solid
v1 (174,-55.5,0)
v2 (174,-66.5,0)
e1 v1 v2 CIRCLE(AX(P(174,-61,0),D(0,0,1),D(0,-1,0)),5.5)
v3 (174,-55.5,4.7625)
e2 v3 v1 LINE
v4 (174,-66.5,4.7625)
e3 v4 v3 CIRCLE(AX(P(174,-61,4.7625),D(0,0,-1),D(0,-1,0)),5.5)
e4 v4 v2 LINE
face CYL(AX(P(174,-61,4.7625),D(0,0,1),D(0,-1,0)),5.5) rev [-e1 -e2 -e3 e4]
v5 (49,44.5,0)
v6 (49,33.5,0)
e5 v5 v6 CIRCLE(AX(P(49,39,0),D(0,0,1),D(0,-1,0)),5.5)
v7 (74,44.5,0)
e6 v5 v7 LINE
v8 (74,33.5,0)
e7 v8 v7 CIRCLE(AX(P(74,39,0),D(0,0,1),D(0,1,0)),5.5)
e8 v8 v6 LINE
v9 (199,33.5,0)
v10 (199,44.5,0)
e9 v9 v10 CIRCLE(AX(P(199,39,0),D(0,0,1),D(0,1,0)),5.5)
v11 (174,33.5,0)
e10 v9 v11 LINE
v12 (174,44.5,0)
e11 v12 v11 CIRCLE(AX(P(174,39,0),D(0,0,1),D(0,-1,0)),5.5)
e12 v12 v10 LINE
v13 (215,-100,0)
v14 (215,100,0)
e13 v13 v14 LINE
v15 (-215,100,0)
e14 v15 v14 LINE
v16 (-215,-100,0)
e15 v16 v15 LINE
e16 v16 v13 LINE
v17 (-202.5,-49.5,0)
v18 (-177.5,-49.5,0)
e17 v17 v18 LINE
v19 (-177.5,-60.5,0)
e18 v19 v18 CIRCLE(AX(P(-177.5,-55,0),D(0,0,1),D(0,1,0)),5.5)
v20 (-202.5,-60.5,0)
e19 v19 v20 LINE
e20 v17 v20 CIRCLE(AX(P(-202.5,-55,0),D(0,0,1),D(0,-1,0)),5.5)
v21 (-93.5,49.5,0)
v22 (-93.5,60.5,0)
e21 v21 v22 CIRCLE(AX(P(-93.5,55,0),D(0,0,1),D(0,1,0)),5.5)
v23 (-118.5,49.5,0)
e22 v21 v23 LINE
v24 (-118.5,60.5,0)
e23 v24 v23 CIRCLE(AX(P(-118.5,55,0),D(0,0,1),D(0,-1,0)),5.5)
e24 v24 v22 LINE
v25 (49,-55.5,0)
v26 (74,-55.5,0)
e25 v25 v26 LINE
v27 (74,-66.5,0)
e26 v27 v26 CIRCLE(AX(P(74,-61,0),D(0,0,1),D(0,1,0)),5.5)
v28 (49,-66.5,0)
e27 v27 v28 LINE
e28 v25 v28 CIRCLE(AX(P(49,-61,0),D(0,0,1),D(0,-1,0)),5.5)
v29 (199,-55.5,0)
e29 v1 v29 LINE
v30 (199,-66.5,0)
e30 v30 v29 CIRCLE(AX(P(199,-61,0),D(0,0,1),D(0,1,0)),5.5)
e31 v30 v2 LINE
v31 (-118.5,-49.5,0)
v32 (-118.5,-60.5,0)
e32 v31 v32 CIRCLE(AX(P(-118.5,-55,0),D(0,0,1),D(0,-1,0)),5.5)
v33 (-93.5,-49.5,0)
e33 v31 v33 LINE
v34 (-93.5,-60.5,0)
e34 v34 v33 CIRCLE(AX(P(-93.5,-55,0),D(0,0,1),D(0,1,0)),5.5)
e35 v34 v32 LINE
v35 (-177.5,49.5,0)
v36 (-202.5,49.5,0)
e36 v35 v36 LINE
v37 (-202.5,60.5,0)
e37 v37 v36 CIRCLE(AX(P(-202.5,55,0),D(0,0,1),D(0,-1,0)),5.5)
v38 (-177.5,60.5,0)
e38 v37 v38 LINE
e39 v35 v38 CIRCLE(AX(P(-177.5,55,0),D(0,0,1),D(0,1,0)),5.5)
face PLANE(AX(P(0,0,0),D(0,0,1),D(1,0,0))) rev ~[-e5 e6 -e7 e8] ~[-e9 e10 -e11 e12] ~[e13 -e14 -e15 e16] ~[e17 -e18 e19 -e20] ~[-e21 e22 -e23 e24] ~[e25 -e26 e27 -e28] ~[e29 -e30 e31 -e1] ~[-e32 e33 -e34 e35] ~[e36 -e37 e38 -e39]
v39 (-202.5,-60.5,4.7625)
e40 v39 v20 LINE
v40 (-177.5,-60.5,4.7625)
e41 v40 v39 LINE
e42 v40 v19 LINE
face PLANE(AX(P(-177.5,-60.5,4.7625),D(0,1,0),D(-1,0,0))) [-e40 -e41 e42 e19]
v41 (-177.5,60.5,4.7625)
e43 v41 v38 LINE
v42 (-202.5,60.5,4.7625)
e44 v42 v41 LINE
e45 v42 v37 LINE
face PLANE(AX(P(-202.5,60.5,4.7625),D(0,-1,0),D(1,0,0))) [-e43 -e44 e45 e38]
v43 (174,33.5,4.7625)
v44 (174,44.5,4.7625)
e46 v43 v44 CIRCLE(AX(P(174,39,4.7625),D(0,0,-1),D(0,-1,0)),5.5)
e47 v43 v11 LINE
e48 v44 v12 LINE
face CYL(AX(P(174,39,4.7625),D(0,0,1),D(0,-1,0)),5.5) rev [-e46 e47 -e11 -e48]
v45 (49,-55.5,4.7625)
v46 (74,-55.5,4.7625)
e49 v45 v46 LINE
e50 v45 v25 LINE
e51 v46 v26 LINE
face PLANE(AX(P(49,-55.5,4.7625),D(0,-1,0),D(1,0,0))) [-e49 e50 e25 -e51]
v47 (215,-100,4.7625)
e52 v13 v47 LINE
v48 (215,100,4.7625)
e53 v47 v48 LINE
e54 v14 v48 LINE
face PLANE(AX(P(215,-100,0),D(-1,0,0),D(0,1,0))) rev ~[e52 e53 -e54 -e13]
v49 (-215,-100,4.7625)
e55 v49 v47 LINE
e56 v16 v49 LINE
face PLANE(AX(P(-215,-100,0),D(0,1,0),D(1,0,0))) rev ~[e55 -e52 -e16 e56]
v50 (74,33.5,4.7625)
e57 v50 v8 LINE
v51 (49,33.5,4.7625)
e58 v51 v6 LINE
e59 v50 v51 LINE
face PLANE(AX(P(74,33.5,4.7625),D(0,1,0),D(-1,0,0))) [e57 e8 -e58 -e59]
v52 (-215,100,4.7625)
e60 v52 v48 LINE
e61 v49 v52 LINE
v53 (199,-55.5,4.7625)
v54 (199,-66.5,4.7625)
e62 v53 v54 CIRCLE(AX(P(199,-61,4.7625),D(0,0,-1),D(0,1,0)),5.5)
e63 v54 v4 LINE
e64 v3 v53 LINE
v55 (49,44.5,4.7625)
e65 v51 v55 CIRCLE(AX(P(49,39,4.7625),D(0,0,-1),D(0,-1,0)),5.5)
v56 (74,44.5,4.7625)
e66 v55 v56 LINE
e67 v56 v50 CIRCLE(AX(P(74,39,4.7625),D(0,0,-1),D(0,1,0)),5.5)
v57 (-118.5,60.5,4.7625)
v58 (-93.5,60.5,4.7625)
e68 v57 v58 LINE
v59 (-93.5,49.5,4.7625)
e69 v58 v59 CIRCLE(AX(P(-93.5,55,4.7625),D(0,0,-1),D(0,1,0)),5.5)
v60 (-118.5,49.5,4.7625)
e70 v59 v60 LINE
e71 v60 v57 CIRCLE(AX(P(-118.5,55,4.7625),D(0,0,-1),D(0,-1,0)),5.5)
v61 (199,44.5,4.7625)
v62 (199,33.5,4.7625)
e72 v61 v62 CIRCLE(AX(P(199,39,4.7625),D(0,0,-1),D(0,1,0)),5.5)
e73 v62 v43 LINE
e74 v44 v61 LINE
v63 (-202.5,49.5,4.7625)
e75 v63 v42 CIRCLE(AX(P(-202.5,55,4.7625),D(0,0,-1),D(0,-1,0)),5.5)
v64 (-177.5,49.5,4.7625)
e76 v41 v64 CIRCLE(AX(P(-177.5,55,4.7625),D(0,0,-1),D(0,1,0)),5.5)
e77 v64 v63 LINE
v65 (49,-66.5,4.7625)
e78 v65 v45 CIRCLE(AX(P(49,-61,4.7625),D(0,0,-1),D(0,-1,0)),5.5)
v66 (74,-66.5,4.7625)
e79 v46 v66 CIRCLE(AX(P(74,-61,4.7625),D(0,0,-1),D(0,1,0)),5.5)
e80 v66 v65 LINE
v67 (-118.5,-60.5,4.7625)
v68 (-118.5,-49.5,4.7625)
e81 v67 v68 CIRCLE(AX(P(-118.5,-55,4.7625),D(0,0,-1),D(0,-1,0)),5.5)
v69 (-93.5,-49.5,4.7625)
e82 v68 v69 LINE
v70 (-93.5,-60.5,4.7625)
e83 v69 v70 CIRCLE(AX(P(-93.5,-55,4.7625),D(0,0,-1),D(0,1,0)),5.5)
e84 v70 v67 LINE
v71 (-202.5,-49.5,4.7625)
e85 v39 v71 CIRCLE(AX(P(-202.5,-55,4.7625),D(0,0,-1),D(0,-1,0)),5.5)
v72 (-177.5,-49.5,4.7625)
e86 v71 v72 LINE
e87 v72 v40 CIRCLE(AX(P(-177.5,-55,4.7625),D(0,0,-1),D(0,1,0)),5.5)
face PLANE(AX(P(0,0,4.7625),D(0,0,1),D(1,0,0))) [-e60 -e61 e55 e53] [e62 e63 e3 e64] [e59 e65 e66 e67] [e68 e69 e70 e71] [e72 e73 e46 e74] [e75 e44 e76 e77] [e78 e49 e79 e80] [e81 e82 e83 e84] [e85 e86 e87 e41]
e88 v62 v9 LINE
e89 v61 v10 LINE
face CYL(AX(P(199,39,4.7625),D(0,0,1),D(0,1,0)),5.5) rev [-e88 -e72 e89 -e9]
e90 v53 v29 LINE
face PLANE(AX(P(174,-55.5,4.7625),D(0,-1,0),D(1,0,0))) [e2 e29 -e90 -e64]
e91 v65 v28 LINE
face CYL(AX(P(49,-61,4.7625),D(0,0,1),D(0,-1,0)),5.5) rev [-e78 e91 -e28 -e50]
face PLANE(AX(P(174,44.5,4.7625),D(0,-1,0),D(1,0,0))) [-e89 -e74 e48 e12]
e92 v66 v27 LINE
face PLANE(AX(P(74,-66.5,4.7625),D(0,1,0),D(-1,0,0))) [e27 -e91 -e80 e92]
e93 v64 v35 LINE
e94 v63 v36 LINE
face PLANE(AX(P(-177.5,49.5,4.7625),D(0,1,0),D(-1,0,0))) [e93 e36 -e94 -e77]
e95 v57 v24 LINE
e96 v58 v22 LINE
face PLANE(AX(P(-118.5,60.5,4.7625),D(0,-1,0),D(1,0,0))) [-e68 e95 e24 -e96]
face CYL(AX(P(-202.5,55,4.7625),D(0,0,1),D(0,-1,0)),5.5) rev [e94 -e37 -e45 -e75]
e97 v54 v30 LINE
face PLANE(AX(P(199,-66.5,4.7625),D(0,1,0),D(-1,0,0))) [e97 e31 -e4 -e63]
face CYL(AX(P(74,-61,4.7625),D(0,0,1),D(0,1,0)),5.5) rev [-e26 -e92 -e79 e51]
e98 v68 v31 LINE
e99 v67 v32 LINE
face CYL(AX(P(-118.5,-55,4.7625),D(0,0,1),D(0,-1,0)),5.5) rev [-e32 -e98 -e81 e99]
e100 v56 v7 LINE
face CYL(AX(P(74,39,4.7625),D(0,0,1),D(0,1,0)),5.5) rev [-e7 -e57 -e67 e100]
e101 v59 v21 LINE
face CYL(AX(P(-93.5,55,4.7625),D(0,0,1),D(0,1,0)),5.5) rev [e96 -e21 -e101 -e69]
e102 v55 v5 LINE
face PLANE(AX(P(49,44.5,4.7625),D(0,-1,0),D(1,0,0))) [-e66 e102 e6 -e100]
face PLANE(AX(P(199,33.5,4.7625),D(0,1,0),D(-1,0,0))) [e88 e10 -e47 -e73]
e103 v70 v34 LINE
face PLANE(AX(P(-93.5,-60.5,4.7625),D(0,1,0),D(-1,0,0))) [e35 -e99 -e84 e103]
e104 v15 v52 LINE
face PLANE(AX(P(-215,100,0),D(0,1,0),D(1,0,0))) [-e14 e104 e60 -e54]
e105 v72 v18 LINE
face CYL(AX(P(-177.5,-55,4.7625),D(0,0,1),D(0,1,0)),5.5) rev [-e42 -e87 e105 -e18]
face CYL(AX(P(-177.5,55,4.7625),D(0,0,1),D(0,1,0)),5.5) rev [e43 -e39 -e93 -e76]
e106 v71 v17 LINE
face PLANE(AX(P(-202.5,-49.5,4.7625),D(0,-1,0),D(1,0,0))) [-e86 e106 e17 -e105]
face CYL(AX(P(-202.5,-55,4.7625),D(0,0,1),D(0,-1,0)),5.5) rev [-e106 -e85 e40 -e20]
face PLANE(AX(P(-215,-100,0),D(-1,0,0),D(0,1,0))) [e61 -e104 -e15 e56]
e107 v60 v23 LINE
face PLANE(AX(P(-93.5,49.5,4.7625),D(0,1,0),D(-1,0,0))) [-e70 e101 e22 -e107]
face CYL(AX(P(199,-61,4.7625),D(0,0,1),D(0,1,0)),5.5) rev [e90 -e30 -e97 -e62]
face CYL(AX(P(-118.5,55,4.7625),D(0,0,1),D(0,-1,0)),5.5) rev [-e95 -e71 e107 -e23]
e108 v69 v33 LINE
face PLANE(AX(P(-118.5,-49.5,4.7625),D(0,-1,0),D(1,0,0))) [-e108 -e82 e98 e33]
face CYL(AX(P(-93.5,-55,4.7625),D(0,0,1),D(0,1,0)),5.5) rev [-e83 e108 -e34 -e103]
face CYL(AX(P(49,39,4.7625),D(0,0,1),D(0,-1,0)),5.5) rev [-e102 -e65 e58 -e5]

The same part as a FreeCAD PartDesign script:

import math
import FreeCAD as App
import Part
import Sketcher
from FreeCAD import Vector
Q = App.Units.Quantity


def add_polygon(sketch, points):
    """Adds a closed chain of lines whose ends are joined by coincident constraints."""
    first, n = sketch.GeometryCount, len(points)
    for a, b in zip(points, points[1:] + points[:1]):
        sketch.addGeometry(Part.LineSegment(App.Vector(*a, 0), App.Vector(*b, 0)), False)
    for i in range(n):
        sketch.addConstraint(Sketcher.Constraint("Coincident", first + i, 2, first + (i + 1) % n, 1))

doc = App.newDocument("Part")
params = doc.addObject("Spreadsheet::Sheet", "Params")
for row, (alias, value) in enumerate([
    ("sketch1_width", "430 mm"),
    ("sketch1_height", "200 mm"),
    ("pad1_length", "4.7625 mm"),
    ("sketch2_radius", "5.5 mm"),
    ("sketch2_width", "25 mm"),
], start=1):
    params.set(f"A{row}", alias)
    params.set(f"B{row}", "=" + value)
    params.setAlias(f"B{row}", alias)

body = doc.addObject("PartDesign::Body", "Body")

# Sketch on XY plane
sketch1 = body.newObject("Sketcher::SketchObject", "Sketch")
sketch1.AttachmentSupport = (doc.getObject("XY_Plane"), [""])
sketch1.MapMode = "FlatFace"
add_polygon(sketch1, [(-215, 100), (-215, -100), (215, -100), (215, 100)])  # lines 0-3
sketch1.addConstraint(Sketcher.Constraint("Vertical", 0))
sketch1.addConstraint(Sketcher.Constraint("Horizontal", 1))
sketch1.addConstraint(Sketcher.Constraint("Vertical", 2))
sketch1.addConstraint(Sketcher.Constraint("Horizontal", 3))
sketch1.addConstraint(Sketcher.Constraint("Symmetric", 0, 2, 2, 2, -1, 1))
sketch1.addConstraint(Sketcher.Constraint("DistanceX", 1, 1, 1, 2, Q("430 mm")))
sketch1.addConstraint(Sketcher.Constraint("DistanceY", 0, 2, 0, 1, Q("200 mm")))
sketch1.setExpression("Constraints[9]", "Params.sketch1_width")
sketch1.setExpression("Constraints[10]", "Params.sketch1_height")
pad1 = body.newObject("PartDesign::Pad", "Pad")
pad1.Profile = sketch1
pad1.setExpression("Length", "Params.pad1_length")

# Sketch on XY plane
sketch2 = body.newObject("Sketcher::SketchObject", "Sketch001")
sketch2.AttachmentSupport = (doc.getObject("XY_Plane"), [""])
sketch2.MapMode = "FlatFace"
sketch2.AttachmentOffset = App.Placement(Vector(0, 0, 4.7625), App.Rotation())
sketch2.addGeometry(Part.LineSegment(Vector(-178, 60, 0), Vector(-202, 60, 0)), False)
sketch2.addGeometry(Part.ArcOfCircle(Part.Circle(Vector(-202, 55, 0), Vector(0, 0, 1), 6), math.radians(90), math.radians(270)), False)
sketch2.addGeometry(Part.LineSegment(Vector(-202, 50, 0), Vector(-178, 50, 0)), False)
sketch2.addGeometry(Part.ArcOfCircle(Part.Circle(Vector(-178, 55, 0), Vector(0, 0, 1), 6), math.radians(-90), math.radians(90)), False)
sketch2.addGeometry(Part.LineSegment(Vector(-118, 50, 0), Vector(-94, 50, 0)), False)
sketch2.addGeometry(Part.ArcOfCircle(Part.Circle(Vector(-94, 55, 0), Vector(0, 0, 1), 6), math.radians(-90), math.radians(90)), False)
sketch2.addGeometry(Part.LineSegment(Vector(-94, 60, 0), Vector(-118, 60, 0)), False)
sketch2.addGeometry(Part.ArcOfCircle(Part.Circle(Vector(-118, 55, 0), Vector(0, 0, 1), 6), math.radians(90), math.radians(270)), False)
sketch2.addGeometry(Part.LineSegment(Vector(-178, -50, 0), Vector(-202, -50, 0)), False)
sketch2.addGeometry(Part.ArcOfCircle(Part.Circle(Vector(-202, -55, 0), Vector(0, 0, 1), 6), math.radians(90), math.radians(270)), False)
sketch2.addGeometry(Part.LineSegment(Vector(-202, -60, 0), Vector(-178, -60, 0)), False)
sketch2.addGeometry(Part.ArcOfCircle(Part.Circle(Vector(-178, -55, 0), Vector(0, 0, 1), 6), math.radians(-90), math.radians(90)), False)
sketch2.addGeometry(Part.LineSegment(Vector(-118, -60, 0), Vector(-94, -60, 0)), False)
sketch2.addGeometry(Part.ArcOfCircle(Part.Circle(Vector(-94, -55, 0), Vector(0, 0, 1), 6), math.radians(-90), math.radians(90)), False)
sketch2.addGeometry(Part.LineSegment(Vector(-94, -50, 0), Vector(-118, -50, 0)), False)
sketch2.addGeometry(Part.ArcOfCircle(Part.Circle(Vector(-118, -55, 0), Vector(0, 0, 1), 6), math.radians(90), math.radians(270)), False)
sketch2.addGeometry(Part.LineSegment(Vector(74, 44, 0), Vector(49, 44, 0)), False)
sketch2.addGeometry(Part.ArcOfCircle(Part.Circle(Vector(49, 39, 0), Vector(0, 0, 1), 6), math.radians(90), math.radians(270)), False)
sketch2.addGeometry(Part.LineSegment(Vector(49, 34, 0), Vector(74, 34, 0)), False)
sketch2.addGeometry(Part.ArcOfCircle(Part.Circle(Vector(74, 39, 0), Vector(0, 0, 1), 6), math.radians(-90), math.radians(90)), False)
sketch2.addGeometry(Part.LineSegment(Vector(174, 34, 0), Vector(199, 34, 0)), False)
sketch2.addGeometry(Part.ArcOfCircle(Part.Circle(Vector(199, 39, 0), Vector(0, 0, 1), 6), math.radians(-90), math.radians(90)), False)
sketch2.addGeometry(Part.LineSegment(Vector(199, 44, 0), Vector(174, 44, 0)), False)
sketch2.addGeometry(Part.ArcOfCircle(Part.Circle(Vector(174, 39, 0), Vector(0, 0, 1), 6), math.radians(90), math.radians(270)), False)
sketch2.addGeometry(Part.LineSegment(Vector(74, -56, 0), Vector(49, -56, 0)), False)
sketch2.addGeometry(Part.ArcOfCircle(Part.Circle(Vector(49, -61, 0), Vector(0, 0, 1), 6), math.radians(90), math.radians(270)), False)
sketch2.addGeometry(Part.LineSegment(Vector(49, -66, 0), Vector(74, -66, 0)), False)
sketch2.addGeometry(Part.ArcOfCircle(Part.Circle(Vector(74, -61, 0), Vector(0, 0, 1), 6), math.radians(-90), math.radians(90)), False)
sketch2.addGeometry(Part.LineSegment(Vector(174, -66, 0), Vector(199, -66, 0)), False)
sketch2.addGeometry(Part.ArcOfCircle(Part.Circle(Vector(199, -61, 0), Vector(0, 0, 1), 6), math.radians(-90), math.radians(90)), False)
sketch2.addGeometry(Part.LineSegment(Vector(199, -56, 0), Vector(174, -56, 0)), False)
sketch2.addGeometry(Part.ArcOfCircle(Part.Circle(Vector(174, -61, 0), Vector(0, 0, 1), 6), math.radians(90), math.radians(270)), False)
sketch2.addConstraint(Sketcher.Constraint("Tangent", 0, 2, 1, 1))
sketch2.addConstraint(Sketcher.Constraint("Tangent", 1, 2, 2, 1))
sketch2.addConstraint(Sketcher.Constraint("Tangent", 2, 2, 3, 1))
sketch2.addConstraint(Sketcher.Constraint("Tangent", 3, 2, 0, 1))
sketch2.addConstraint(Sketcher.Constraint("Tangent", 4, 2, 5, 1))
sketch2.addConstraint(Sketcher.Constraint("Tangent", 5, 2, 6, 1))
sketch2.addConstraint(Sketcher.Constraint("Tangent", 6, 2, 7, 1))
sketch2.addConstraint(Sketcher.Constraint("Tangent", 7, 2, 4, 1))
sketch2.addConstraint(Sketcher.Constraint("Tangent", 8, 2, 9, 1))
sketch2.addConstraint(Sketcher.Constraint("Tangent", 9, 2, 10, 1))
sketch2.addConstraint(Sketcher.Constraint("Tangent", 10, 2, 11, 1))
sketch2.addConstraint(Sketcher.Constraint("Tangent", 11, 2, 8, 1))
sketch2.addConstraint(Sketcher.Constraint("Tangent", 12, 2, 13, 1))
sketch2.addConstraint(Sketcher.Constraint("Tangent", 13, 2, 14, 1))
sketch2.addConstraint(Sketcher.Constraint("Tangent", 14, 2, 15, 1))
sketch2.addConstraint(Sketcher.Constraint("Tangent", 15, 2, 12, 1))
sketch2.addConstraint(Sketcher.Constraint("Tangent", 16, 2, 17, 1))
sketch2.addConstraint(Sketcher.Constraint("Tangent", 17, 2, 18, 1))
sketch2.addConstraint(Sketcher.Constraint("Tangent", 18, 2, 19, 1))
sketch2.addConstraint(Sketcher.Constraint("Tangent", 19, 2, 16, 1))
sketch2.addConstraint(Sketcher.Constraint("Tangent", 20, 2, 21, 1))
sketch2.addConstraint(Sketcher.Constraint("Tangent", 21, 2, 22, 1))
sketch2.addConstraint(Sketcher.Constraint("Tangent", 22, 2, 23, 1))
sketch2.addConstraint(Sketcher.Constraint("Tangent", 23, 2, 20, 1))
sketch2.addConstraint(Sketcher.Constraint("Tangent", 24, 2, 25, 1))
sketch2.addConstraint(Sketcher.Constraint("Tangent", 25, 2, 26, 1))
sketch2.addConstraint(Sketcher.Constraint("Tangent", 26, 2, 27, 1))
sketch2.addConstraint(Sketcher.Constraint("Tangent", 27, 2, 24, 1))
sketch2.addConstraint(Sketcher.Constraint("Tangent", 28, 2, 29, 1))
sketch2.addConstraint(Sketcher.Constraint("Tangent", 29, 2, 30, 1))
sketch2.addConstraint(Sketcher.Constraint("Tangent", 30, 2, 31, 1))
sketch2.addConstraint(Sketcher.Constraint("Tangent", 31, 2, 28, 1))
sketch2.addConstraint(Sketcher.Constraint("Horizontal", 0))
sketch2.addConstraint(Sketcher.Constraint("Horizontal", 2))
sketch2.addConstraint(Sketcher.Constraint("Horizontal", 4))
sketch2.addConstraint(Sketcher.Constraint("Horizontal", 6))
sketch2.addConstraint(Sketcher.Constraint("Horizontal", 8))
sketch2.addConstraint(Sketcher.Constraint("Horizontal", 10))
sketch2.addConstraint(Sketcher.Constraint("Horizontal", 12))
sketch2.addConstraint(Sketcher.Constraint("Horizontal", 14))
sketch2.addConstraint(Sketcher.Constraint("Horizontal", 16))
sketch2.addConstraint(Sketcher.Constraint("Horizontal", 18))
sketch2.addConstraint(Sketcher.Constraint("Horizontal", 20))
sketch2.addConstraint(Sketcher.Constraint("Horizontal", 22))
sketch2.addConstraint(Sketcher.Constraint("Horizontal", 24))
sketch2.addConstraint(Sketcher.Constraint("Horizontal", 26))
sketch2.addConstraint(Sketcher.Constraint("Horizontal", 28))
sketch2.addConstraint(Sketcher.Constraint("Horizontal", 30))
sketch2.addConstraint(Sketcher.Constraint("Equal", 3, 5))
sketch2.addConstraint(Sketcher.Constraint("Equal", 7, 9))
sketch2.addConstraint(Sketcher.Constraint("Equal", 11, 13))
sketch2.addConstraint(Sketcher.Constraint("Equal", 15, 17))
sketch2.addConstraint(Sketcher.Constraint("Equal", 19, 21))
sketch2.addConstraint(Sketcher.Constraint("Equal", 23, 25))
sketch2.addConstraint(Sketcher.Constraint("Equal", 27, 29))
sketch2.addConstraint(Sketcher.Constraint("Symmetric", 1, 3, 9, 3, -1))
sketch2.addConstraint(Sketcher.Constraint("Symmetric", 5, 3, 13, 3, -1))
sketch2.addConstraint(Sketcher.Constraint("Horizontal", 3, 3, 5, 3))
sketch2.addConstraint(Sketcher.Constraint("Horizontal", 19, 3, 21, 3))
sketch2.addConstraint(Sketcher.Constraint("Horizontal", 27, 3, 29, 3))
sketch2.addConstraint(Sketcher.Constraint("Vertical", 3, 3, 11, 3))
sketch2.addConstraint(Sketcher.Constraint("Vertical", 7, 3, 15, 3))
sketch2.addConstraint(Sketcher.Constraint("Vertical", 17, 3, 25, 3))
sketch2.addConstraint(Sketcher.Constraint("Vertical", 19, 3, 27, 3))
sketch2.addConstraint(Sketcher.Constraint("Vertical", 21, 3, 29, 3))
sketch2.addConstraint(Sketcher.Constraint("Vertical", 23, 3, 31, 3))
sketch2.addConstraint(Sketcher.Constraint("Equal", 2, 4))
sketch2.addConstraint(Sketcher.Constraint("Equal", 14, 16))
sketch2.addConstraint(Sketcher.Constraint("Equal", 18, 20))
sketch2.addConstraint(Sketcher.Constraint("Radius", 1, Q("5.5 mm")))
sketch2.addConstraint(Sketcher.Constraint("DistanceX", 0, 2, 0, 1, Q("25 mm")))
sketch2.addConstraint(Sketcher.Constraint("DistanceY", -1, 1, 1, 3, Q("55 mm")))
sketch2.addConstraint(Sketcher.Constraint("DistanceX", -1, 1, 17, 3, Q("49 mm")))
sketch2.addConstraint(Sketcher.Constraint("DistanceY", -1, 1, 17, 3, Q("39 mm")))
sketch2.addConstraint(Sketcher.Constraint("DistanceX", -1, 1, 21, 3, Q("199 mm")))
sketch2.addConstraint(Sketcher.Constraint("DistanceY", 25, 3, -1, 1, Q("61 mm")))
sketch2.addConstraint(Sketcher.Constraint("DistanceX", 3, 3, 5, 3, Q("84 mm")))
sketch2.addConstraint(Sketcher.Constraint("DistanceX", 1, 3, -1, 1, Q("202.5 mm")))
sketch2.setExpression("Constraints[69]", "Params.sketch2_radius")
sketch2.setExpression("Constraints[70]", "Params.sketch2_width")
pocket1 = body.newObject("PartDesign::Pocket", "Pocket")
pocket1.Profile = sketch2
pocket1.Type = "ThroughAll"

doc.recompute()
